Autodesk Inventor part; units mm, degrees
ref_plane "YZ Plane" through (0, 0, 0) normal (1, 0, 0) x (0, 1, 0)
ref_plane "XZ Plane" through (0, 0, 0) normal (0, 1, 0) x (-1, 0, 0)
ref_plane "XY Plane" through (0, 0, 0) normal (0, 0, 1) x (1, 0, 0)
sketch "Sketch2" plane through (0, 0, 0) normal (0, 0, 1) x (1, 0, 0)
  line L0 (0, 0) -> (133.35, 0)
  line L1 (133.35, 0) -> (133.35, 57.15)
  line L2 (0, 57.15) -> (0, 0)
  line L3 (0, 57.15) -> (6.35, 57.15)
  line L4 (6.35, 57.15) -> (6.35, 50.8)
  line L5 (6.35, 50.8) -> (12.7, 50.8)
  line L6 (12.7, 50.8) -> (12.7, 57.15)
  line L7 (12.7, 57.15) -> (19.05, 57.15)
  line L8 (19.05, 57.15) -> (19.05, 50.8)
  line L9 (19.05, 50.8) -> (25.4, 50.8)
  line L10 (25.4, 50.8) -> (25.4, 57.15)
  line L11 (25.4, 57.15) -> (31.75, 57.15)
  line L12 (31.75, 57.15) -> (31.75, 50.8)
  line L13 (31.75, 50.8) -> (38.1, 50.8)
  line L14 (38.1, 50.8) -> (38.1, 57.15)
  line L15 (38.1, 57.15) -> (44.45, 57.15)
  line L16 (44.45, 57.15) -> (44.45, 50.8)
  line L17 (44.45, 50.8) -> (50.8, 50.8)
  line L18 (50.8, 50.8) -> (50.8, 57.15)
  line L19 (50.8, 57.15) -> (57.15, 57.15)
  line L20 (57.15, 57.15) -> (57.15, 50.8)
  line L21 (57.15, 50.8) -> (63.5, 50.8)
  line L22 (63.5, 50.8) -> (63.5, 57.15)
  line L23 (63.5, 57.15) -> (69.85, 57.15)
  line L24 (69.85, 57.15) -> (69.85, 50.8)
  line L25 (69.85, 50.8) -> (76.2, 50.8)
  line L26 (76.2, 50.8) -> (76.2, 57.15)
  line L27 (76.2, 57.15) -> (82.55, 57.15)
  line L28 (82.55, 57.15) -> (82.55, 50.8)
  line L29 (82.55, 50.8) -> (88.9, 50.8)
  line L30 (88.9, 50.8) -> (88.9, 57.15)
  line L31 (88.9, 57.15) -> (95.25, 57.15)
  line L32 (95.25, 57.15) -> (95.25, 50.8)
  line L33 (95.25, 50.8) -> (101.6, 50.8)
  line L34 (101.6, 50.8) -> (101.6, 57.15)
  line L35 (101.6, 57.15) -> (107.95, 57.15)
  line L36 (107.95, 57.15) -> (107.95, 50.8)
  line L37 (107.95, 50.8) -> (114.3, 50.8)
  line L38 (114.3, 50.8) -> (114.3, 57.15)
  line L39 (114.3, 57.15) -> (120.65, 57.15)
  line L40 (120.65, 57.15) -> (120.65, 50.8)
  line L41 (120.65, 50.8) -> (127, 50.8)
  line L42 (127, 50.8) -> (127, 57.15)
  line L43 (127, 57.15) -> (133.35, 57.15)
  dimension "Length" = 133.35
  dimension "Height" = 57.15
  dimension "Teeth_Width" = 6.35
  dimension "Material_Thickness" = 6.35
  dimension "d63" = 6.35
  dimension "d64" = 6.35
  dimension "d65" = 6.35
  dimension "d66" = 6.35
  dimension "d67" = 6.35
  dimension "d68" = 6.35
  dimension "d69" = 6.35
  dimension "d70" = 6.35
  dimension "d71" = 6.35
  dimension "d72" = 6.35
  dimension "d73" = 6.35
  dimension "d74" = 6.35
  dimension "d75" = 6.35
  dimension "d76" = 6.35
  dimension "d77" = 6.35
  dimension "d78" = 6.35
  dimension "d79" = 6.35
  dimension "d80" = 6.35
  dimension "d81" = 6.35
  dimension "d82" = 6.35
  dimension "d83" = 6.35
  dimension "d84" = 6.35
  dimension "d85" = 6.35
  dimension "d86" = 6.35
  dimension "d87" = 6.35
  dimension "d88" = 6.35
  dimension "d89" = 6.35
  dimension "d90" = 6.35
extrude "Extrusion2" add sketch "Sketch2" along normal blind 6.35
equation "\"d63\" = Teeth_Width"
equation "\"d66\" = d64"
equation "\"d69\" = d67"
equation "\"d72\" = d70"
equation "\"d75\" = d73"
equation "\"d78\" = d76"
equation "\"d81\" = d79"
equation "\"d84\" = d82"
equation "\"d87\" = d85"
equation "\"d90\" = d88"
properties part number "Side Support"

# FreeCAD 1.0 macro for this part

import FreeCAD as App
import Part
import Sketcher
Q = App.Units.Quantity

doc = App.newDocument("Part")
body = doc.addObject("PartDesign::Body", "Body")

# Sketch on XY plane
sketch1 = body.newObject("Sketcher::SketchObject", "Sketch")
sketch1.AttachmentSupport = (doc.getObject("XY_Plane"), [""])
sketch1.MapMode = "FlatFace"
sketch1.addGeometry(Part.LineSegment(App.Vector(0, 57, 0), App.Vector(0, 0, 0)), False)
sketch1.addGeometry(Part.LineSegment(App.Vector(0, 0, 0), App.Vector(133, 0, 0)), False)
sketch1.addGeometry(Part.LineSegment(App.Vector(133, 0, 0), App.Vector(133, 57, 0)), False)
sketch1.addGeometry(Part.LineSegment(App.Vector(133, 57, 0), App.Vector(127, 57, 0)), False)
sketch1.addGeometry(Part.LineSegment(App.Vector(127, 57, 0), App.Vector(127, 51, 0)), False)
sketch1.addGeometry(Part.LineSegment(App.Vector(127, 51, 0), App.Vector(121, 51, 0)), False)
sketch1.addGeometry(Part.LineSegment(App.Vector(121, 51, 0), App.Vector(121, 57, 0)), False)
sketch1.addGeometry(Part.LineSegment(App.Vector(121, 57, 0), App.Vector(114, 57, 0)), False)
sketch1.addGeometry(Part.LineSegment(App.Vector(114, 57, 0), App.Vector(114, 51, 0)), False)
sketch1.addGeometry(Part.LineSegment(App.Vector(114, 51, 0), App.Vector(108, 51, 0)), False)
sketch1.addGeometry(Part.LineSegment(App.Vector(108, 51, 0), App.Vector(108, 57, 0)), False)
sketch1.addGeometry(Part.LineSegment(App.Vector(108, 57, 0), App.Vector(102, 57, 0)), False)
sketch1.addGeometry(Part.LineSegment(App.Vector(102, 57, 0), App.Vector(102, 51, 0)), False)
sketch1.addGeometry(Part.LineSegment(App.Vector(102, 51, 0), App.Vector(95, 51, 0)), False)
sketch1.addGeometry(Part.LineSegment(App.Vector(95, 51, 0), App.Vector(95, 57, 0)), False)
sketch1.addGeometry(Part.LineSegment(App.Vector(95, 57, 0), App.Vector(89, 57, 0)), False)
sketch1.addGeometry(Part.LineSegment(App.Vector(89, 57, 0), App.Vector(89, 51, 0)), False)
sketch1.addGeometry(Part.LineSegment(App.Vector(89, 51, 0), App.Vector(83, 51, 0)), False)
sketch1.addGeometry(Part.LineSegment(App.Vector(83, 51, 0), App.Vector(83, 57, 0)), False)
sketch1.addGeometry(Part.LineSegment(App.Vector(83, 57, 0), App.Vector(76, 57, 0)), False)
sketch1.addGeometry(Part.LineSegment(App.Vector(76, 57, 0), App.Vector(76, 51, 0)), False)
sketch1.addGeometry(Part.LineSegment(App.Vector(76, 51, 0), App.Vector(70, 51, 0)), False)
sketch1.addGeometry(Part.LineSegment(App.Vector(70, 51, 0), App.Vector(70, 57, 0)), False)
sketch1.addGeometry(Part.LineSegment(App.Vector(70, 57, 0), App.Vector(64, 57, 0)), False)
sketch1.addGeometry(Part.LineSegment(App.Vector(64, 57, 0), App.Vector(64, 51, 0)), False)
sketch1.addGeometry(Part.LineSegment(App.Vector(64, 51, 0), App.Vector(57, 51, 0)), False)
sketch1.addGeometry(Part.LineSegment(App.Vector(57, 51, 0), App.Vector(57, 57, 0)), False)
sketch1.addGeometry(Part.LineSegment(App.Vector(57, 57, 0), App.Vector(51, 57, 0)), False)
sketch1.addGeometry(Part.LineSegment(App.Vector(51, 57, 0), App.Vector(51, 51, 0)), False)
sketch1.addGeometry(Part.LineSegment(App.Vector(51, 51, 0), App.Vector(44, 51, 0)), False)
sketch1.addGeometry(Part.LineSegment(App.Vector(44, 51, 0), App.Vector(44, 57, 0)), False)
sketch1.addGeometry(Part.LineSegment(App.Vector(44, 57, 0), App.Vector(38, 57, 0)), False)
sketch1.addGeometry(Part.LineSegment(App.Vector(38, 57, 0), App.Vector(38, 51, 0)), False)
sketch1.addGeometry(Part.LineSegment(App.Vector(38, 51, 0), App.Vector(32, 51, 0)), False)
sketch1.addGeometry(Part.LineSegment(App.Vector(32, 51, 0), App.Vector(32, 57, 0)), False)
sketch1.addGeometry(Part.LineSegment(App.Vector(32, 57, 0), App.Vector(25, 57, 0)), False)
sketch1.addGeometry(Part.LineSegment(App.Vector(25, 57, 0), App.Vector(25, 51, 0)), False)
sketch1.addGeometry(Part.LineSegment(App.Vector(25, 51, 0), App.Vector(19, 51, 0)), False)
sketch1.addGeometry(Part.LineSegment(App.Vector(19, 51, 0), App.Vector(19, 57, 0)), False)
sketch1.addGeometry(Part.LineSegment(App.Vector(19, 57, 0), App.Vector(13, 57, 0)), False)
sketch1.addGeometry(Part.LineSegment(App.Vector(13, 57, 0), App.Vector(13, 51, 0)), False)
sketch1.addGeometry(Part.LineSegment(App.Vector(13, 51, 0), App.Vector(6, 51, 0)), False)
sketch1.addGeometry(Part.LineSegment(App.Vector(6, 51, 0), App.Vector(6, 57, 0)), False)
sketch1.addGeometry(Part.LineSegment(App.Vector(6, 57, 0), App.Vector(0, 57, 0)), False)
sketch1.addConstraint(Sketcher.Constraint("Coincident", 0, 2, 1, 1))
sketch1.addConstraint(Sketcher.Constraint("Coincident", 1, 2, 2, 1))
sketch1.addConstraint(Sketcher.Constraint("Coincident", 2, 2, 3, 1))
sketch1.addConstraint(Sketcher.Constraint("Coincident", 3, 2, 4, 1))
sketch1.addConstraint(Sketcher.Constraint("Coincident", 4, 2, 5, 1))
sketch1.addConstraint(Sketcher.Constraint("Coincident", 5, 2, 6, 1))
sketch1.addConstraint(Sketcher.Constraint("Coincident", 6, 2, 7, 1))
sketch1.addConstraint(Sketcher.Constraint("Coincident", 7, 2, 8, 1))
sketch1.addConstraint(Sketcher.Constraint("Coincident", 8, 2, 9, 1))
sketch1.addConstraint(Sketcher.Constraint("Coincident", 9, 2, 10, 1))
sketch1.addConstraint(Sketcher.Constraint("Coincident", 10, 2, 11, 1))
sketch1.addConstraint(Sketcher.Constraint("Coincident", 11, 2, 12, 1))
sketch1.addConstraint(Sketcher.Constraint("Coincident", 12, 2, 13, 1))
sketch1.addConstraint(Sketcher.Constraint("Coincident", 13, 2, 14, 1))
sketch1.addConstraint(Sketcher.Constraint("Coincident", 14, 2, 15, 1))
sketch1.addConstraint(Sketcher.Constraint("Coincident", 15, 2, 16, 1))
sketch1.addConstraint(Sketcher.Constraint("Coincident", 16, 2, 17, 1))
sketch1.addConstraint(Sketcher.Constraint("Coincident", 17, 2, 18, 1))
sketch1.addConstraint(Sketcher.Constraint("Coincident", 18, 2, 19, 1))
sketch1.addConstraint(Sketcher.Constraint("Coincident", 19, 2, 20, 1))
sketch1.addConstraint(Sketcher.Constraint("Coincident", 20, 2, 21, 1))
sketch1.addConstraint(Sketcher.Constraint("Coincident", 21, 2, 22, 1))
sketch1.addConstraint(Sketcher.Constraint("Coincident", 22, 2, 23, 1))
sketch1.addConstraint(Sketcher.Constraint("Coincident", 23, 2, 24, 1))
sketch1.addConstraint(Sketcher.Constraint("Coincident", 24, 2, 25, 1))
sketch1.addConstraint(Sketcher.Constraint("Coincident", 25, 2, 26, 1))
sketch1.addConstraint(Sketcher.Constraint("Coincident", 26, 2, 27, 1))
sketch1.addConstraint(Sketcher.Constraint("Coincident", 27, 2, 28, 1))
sketch1.addConstraint(Sketcher.Constraint("Coincident", 28, 2, 29, 1))
sketch1.addConstraint(Sketcher.Constraint("Coincident", 29, 2, 30, 1))
sketch1.addConstraint(Sketcher.Constraint("Coincident", 30, 2, 31, 1))
sketch1.addConstraint(Sketcher.Constraint("Coincident", 31, 2, 32, 1))
sketch1.addConstraint(Sketcher.Constraint("Coincident", 32, 2, 33, 1))
sketch1.addConstraint(Sketcher.Constraint("Coincident", 33, 2, 34, 1))
sketch1.addConstraint(Sketcher.Constraint("Coincident", 34, 2, 35, 1))
sketch1.addConstraint(Sketcher.Constraint("Coincident", 35, 2, 36, 1))
sketch1.addConstraint(Sketcher.Constraint("Coincident", 36, 2, 37, 1))
sketch1.addConstraint(Sketcher.Constraint("Coincident", 37, 2, 38, 1))
sketch1.addConstraint(Sketcher.Constraint("Coincident", 38, 2, 39, 1))
sketch1.addConstraint(Sketcher.Constraint("Coincident", 39, 2, 40, 1))
sketch1.addConstraint(Sketcher.Constraint("Coincident", 40, 2, 41, 1))
sketch1.addConstraint(Sketcher.Constraint("Coincident", 41, 2, 42, 1))
sketch1.addConstraint(Sketcher.Constraint("Coincident", 42, 2, 43, 1))
sketch1.addConstraint(Sketcher.Constraint("Coincident", 43, 2, 0, 1))
sketch1.addConstraint(Sketcher.Constraint("Vertical", 0))
sketch1.addConstraint(Sketcher.Constraint("Horizontal", 1))
sketch1.addConstraint(Sketcher.Constraint("Vertical", 2))
sketch1.addConstraint(Sketcher.Constraint("Horizontal", 3))
sketch1.addConstraint(Sketcher.Constraint("Vertical", 4))
sketch1.addConstraint(Sketcher.Constraint("Horizontal", 5))
sketch1.addConstraint(Sketcher.Constraint("Vertical", 6))
sketch1.addConstraint(Sketcher.Constraint("Horizontal", 7))
sketch1.addConstraint(Sketcher.Constraint("Vertical", 8))
sketch1.addConstraint(Sketcher.Constraint("Horizontal", 9))
sketch1.addConstraint(Sketcher.Constraint("Vertical", 10))
sketch1.addConstraint(Sketcher.Constraint("Horizontal", 11))
sketch1.addConstraint(Sketcher.Constraint("Vertical", 12))
sketch1.addConstraint(Sketcher.Constraint("Horizontal", 13))
sketch1.addConstraint(Sketcher.Constraint("Vertical", 14))
sketch1.addConstraint(Sketcher.Constraint("Horizontal", 15))
sketch1.addConstraint(Sketcher.Constraint("Vertical", 16))
sketch1.addConstraint(Sketcher.Constraint("Horizontal", 17))
sketch1.addConstraint(Sketcher.Constraint("Vertical", 18))
sketch1.addConstraint(Sketcher.Constraint("Horizontal", 19))
sketch1.addConstraint(Sketcher.Constraint("Vertical", 20))
sketch1.addConstraint(Sketcher.Constraint("Horizontal", 21))
sketch1.addConstraint(Sketcher.Constraint("Vertical", 22))
sketch1.addConstraint(Sketcher.Constraint("Horizontal", 23))
sketch1.addConstraint(Sketcher.Constraint("Vertical", 24))
sketch1.addConstraint(Sketcher.Constraint("Horizontal", 25))
sketch1.addConstraint(Sketcher.Constraint("Vertical", 26))
sketch1.addConstraint(Sketcher.Constraint("Horizontal", 27))
sketch1.addConstraint(Sketcher.Constraint("Vertical", 28))
sketch1.addConstraint(Sketcher.Constraint("Horizontal", 29))
sketch1.addConstraint(Sketcher.Constraint("Vertical", 30))
sketch1.addConstraint(Sketcher.Constraint("Horizontal", 31))
sketch1.addConstraint(Sketcher.Constraint("Vertical", 32))
sketch1.addConstraint(Sketcher.Constraint("Horizontal", 33))
sketch1.addConstraint(Sketcher.Constraint("Vertical", 34))
sketch1.addConstraint(Sketcher.Constraint("Horizontal", 35))
sketch1.addConstraint(Sketcher.Constraint("Vertical", 36))
sketch1.addConstraint(Sketcher.Constraint("Horizontal", 37))
sketch1.addConstraint(Sketcher.Constraint("Vertical", 38))
sketch1.addConstraint(Sketcher.Constraint("Horizontal", 39))
sketch1.addConstraint(Sketcher.Constraint("Vertical", 40))
sketch1.addConstraint(Sketcher.Constraint("Horizontal", 41))
sketch1.addConstraint(Sketcher.Constraint("Vertical", 42))
sketch1.addConstraint(Sketcher.Constraint("Horizontal", 43))
sketch1.addConstraint(Sketcher.Constraint("Coincident", 0, 2, -1, 1))
sketch1.addConstraint(Sketcher.Constraint("Horizontal", 3, 2, 6, 2))
sketch1.addConstraint(Sketcher.Constraint("Horizontal", 5, 2, 8, 2))
sketch1.addConstraint(Sketcher.Constraint("Horizontal", 7, 2, 10, 2))
sketch1.addConstraint(Sketcher.Constraint("Horizontal", 9, 2, 12, 2))
sketch1.addConstraint(Sketcher.Constraint("Horizontal", 11, 2, 14, 2))
sketch1.addConstraint(Sketcher.Constraint("Horizontal", 13, 2, 16, 2))
sketch1.addConstraint(Sketcher.Constraint("Horizontal", 15, 2, 18, 2))
sketch1.addConstraint(Sketcher.Constraint("Horizontal", 17, 2, 20, 2))
sketch1.addConstraint(Sketcher.Constraint("Horizontal", 19, 2, 22, 2))
sketch1.addConstraint(Sketcher.Constraint("Horizontal", 21, 2, 24, 2))
sketch1.addConstraint(Sketcher.Constraint("Horizontal", 23, 2, 26, 2))
sketch1.addConstraint(Sketcher.Constraint("Horizontal", 25, 2, 28, 2))
sketch1.addConstraint(Sketcher.Constraint("Horizontal", 27, 2, 30, 2))
sketch1.addConstraint(Sketcher.Constraint("Horizontal", 29, 2, 32, 2))
sketch1.addConstraint(Sketcher.Constraint("Horizontal", 31, 2, 34, 2))
sketch1.addConstraint(Sketcher.Constraint("Horizontal", 33, 2, 36, 2))
sketch1.addConstraint(Sketcher.Constraint("Horizontal", 35, 2, 38, 2))
sketch1.addConstraint(Sketcher.Constraint("Horizontal", 37, 2, 40, 2))
sketch1.addConstraint(Sketcher.Constraint("Horizontal", 39, 2, 42, 2))
sketch1.addConstraint(Sketcher.Constraint("Equal", 3, 5))
sketch1.addConstraint(Sketcher.Constraint("Equal", 5, 7))
sketch1.addConstraint(Sketcher.Constraint("Equal", 7, 9))
sketch1.addConstraint(Sketcher.Constraint("Equal", 9, 11))
sketch1.addConstraint(Sketcher.Constraint("Equal", 11, 13))
sketch1.addConstraint(Sketcher.Constraint("Equal", 13, 15))
sketch1.addConstraint(Sketcher.Constraint("Equal", 15, 17))
sketch1.addConstraint(Sketcher.Constraint("Equal", 17, 19))
sketch1.addConstraint(Sketcher.Constraint("Equal", 19, 21))
sketch1.addConstraint(Sketcher.Constraint("Equal", 21, 23))
sketch1.addConstraint(Sketcher.Constraint("Equal", 23, 25))
sketch1.addConstraint(Sketcher.Constraint("Equal", 25, 27))
sketch1.addConstraint(Sketcher.Constraint("Equal", 27, 29))
sketch1.addConstraint(Sketcher.Constraint("Equal", 29, 31))
sketch1.addConstraint(Sketcher.Constraint("Equal", 31, 33))
sketch1.addConstraint(Sketcher.Constraint("Equal", 33, 35))
sketch1.addConstraint(Sketcher.Constraint("Equal", 35, 37))
sketch1.addConstraint(Sketcher.Constraint("Equal", 37, 39))
sketch1.addConstraint(Sketcher.Constraint("Equal", 39, 41))
sketch1.addConstraint(Sketcher.Constraint("Equal", 41, 43))
sketch1.addConstraint(Sketcher.Constraint("Equal", 43, 4))
sketch1.addConstraint(Sketcher.Constraint("DistanceX", 1, 1, 1, 2, Q("5.25 in")))
sketch1.addConstraint(Sketcher.Constraint("DistanceY", 0, 2, 0, 1, Q("2.25 in")))
pad1 = body.newObject("PartDesign::Pad", "Pad")
pad1.Profile = sketch1
pad1.Length = Q("0.25 in")

doc.recompute()
